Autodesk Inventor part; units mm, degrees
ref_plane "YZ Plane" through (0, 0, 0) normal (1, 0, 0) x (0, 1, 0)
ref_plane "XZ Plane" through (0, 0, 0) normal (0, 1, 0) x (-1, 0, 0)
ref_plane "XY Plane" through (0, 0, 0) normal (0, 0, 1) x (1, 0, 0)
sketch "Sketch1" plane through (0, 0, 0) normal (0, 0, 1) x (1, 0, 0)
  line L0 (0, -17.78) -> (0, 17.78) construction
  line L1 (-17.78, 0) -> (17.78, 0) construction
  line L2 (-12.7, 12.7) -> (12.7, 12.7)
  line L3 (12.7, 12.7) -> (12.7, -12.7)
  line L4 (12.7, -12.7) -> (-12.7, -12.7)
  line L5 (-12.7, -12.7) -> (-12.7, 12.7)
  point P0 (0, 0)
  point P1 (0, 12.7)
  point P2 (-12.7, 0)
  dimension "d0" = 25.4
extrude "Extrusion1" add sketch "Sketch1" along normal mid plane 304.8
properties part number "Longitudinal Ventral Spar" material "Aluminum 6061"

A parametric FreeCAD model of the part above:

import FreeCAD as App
import Part
import Sketcher
Q = App.Units.Quantity

doc = App.newDocument("Part")
body = doc.addObject("PartDesign::Body", "Body")

sketch1 = body.newObject("Sketcher::SketchObject", "Sketch")
sketch1.AttachmentSupport = (doc.getObject("XY_Plane"), [""])
sketch1.MapMode = "FlatFace"
sketch1.addGeometry(Part.LineSegment(App.Vector(13, 13, 0), App.Vector(-13, 13, 0)), False)
sketch1.addGeometry(Part.LineSegment(App.Vector(-13, 13, 0), App.Vector(-13, -13, 0)), False)
sketch1.addGeometry(Part.LineSegment(App.Vector(-13, -13, 0), App.Vector(13, -13, 0)), False)
sketch1.addGeometry(Part.LineSegment(App.Vector(13, -13, 0), App.Vector(13, 13, 0)), False)
sketch1.addConstraint(Sketcher.Constraint("Coincident", 0, 2, 1, 1))
sketch1.addConstraint(Sketcher.Constraint("Coincident", 1, 2, 2, 1))
sketch1.addConstraint(Sketcher.Constraint("Coincident", 2, 2, 3, 1))
sketch1.addConstraint(Sketcher.Constraint("Coincident", 3, 2, 0, 1))
sketch1.addConstraint(Sketcher.Constraint("Horizontal", 0))
sketch1.addConstraint(Sketcher.Constraint("Vertical", 1))
sketch1.addConstraint(Sketcher.Constraint("Horizontal", 2))
sketch1.addConstraint(Sketcher.Constraint("Vertical", 3))
sketch1.addConstraint(Sketcher.Constraint("Symmetric", 0, 2, 2, 2, -1, 1))
sketch1.addConstraint(Sketcher.Constraint("Equal", 2, 1))
sketch1.addConstraint(Sketcher.Constraint("DistanceX", 0, 2, 0, 1, Q("1 in")))
pad1 = body.newObject("PartDesign::Pad", "Pad")
pad1.Profile = sketch1
pad1.Length = Q("12 in")
pad1.Midplane = True

doc.recompute()
